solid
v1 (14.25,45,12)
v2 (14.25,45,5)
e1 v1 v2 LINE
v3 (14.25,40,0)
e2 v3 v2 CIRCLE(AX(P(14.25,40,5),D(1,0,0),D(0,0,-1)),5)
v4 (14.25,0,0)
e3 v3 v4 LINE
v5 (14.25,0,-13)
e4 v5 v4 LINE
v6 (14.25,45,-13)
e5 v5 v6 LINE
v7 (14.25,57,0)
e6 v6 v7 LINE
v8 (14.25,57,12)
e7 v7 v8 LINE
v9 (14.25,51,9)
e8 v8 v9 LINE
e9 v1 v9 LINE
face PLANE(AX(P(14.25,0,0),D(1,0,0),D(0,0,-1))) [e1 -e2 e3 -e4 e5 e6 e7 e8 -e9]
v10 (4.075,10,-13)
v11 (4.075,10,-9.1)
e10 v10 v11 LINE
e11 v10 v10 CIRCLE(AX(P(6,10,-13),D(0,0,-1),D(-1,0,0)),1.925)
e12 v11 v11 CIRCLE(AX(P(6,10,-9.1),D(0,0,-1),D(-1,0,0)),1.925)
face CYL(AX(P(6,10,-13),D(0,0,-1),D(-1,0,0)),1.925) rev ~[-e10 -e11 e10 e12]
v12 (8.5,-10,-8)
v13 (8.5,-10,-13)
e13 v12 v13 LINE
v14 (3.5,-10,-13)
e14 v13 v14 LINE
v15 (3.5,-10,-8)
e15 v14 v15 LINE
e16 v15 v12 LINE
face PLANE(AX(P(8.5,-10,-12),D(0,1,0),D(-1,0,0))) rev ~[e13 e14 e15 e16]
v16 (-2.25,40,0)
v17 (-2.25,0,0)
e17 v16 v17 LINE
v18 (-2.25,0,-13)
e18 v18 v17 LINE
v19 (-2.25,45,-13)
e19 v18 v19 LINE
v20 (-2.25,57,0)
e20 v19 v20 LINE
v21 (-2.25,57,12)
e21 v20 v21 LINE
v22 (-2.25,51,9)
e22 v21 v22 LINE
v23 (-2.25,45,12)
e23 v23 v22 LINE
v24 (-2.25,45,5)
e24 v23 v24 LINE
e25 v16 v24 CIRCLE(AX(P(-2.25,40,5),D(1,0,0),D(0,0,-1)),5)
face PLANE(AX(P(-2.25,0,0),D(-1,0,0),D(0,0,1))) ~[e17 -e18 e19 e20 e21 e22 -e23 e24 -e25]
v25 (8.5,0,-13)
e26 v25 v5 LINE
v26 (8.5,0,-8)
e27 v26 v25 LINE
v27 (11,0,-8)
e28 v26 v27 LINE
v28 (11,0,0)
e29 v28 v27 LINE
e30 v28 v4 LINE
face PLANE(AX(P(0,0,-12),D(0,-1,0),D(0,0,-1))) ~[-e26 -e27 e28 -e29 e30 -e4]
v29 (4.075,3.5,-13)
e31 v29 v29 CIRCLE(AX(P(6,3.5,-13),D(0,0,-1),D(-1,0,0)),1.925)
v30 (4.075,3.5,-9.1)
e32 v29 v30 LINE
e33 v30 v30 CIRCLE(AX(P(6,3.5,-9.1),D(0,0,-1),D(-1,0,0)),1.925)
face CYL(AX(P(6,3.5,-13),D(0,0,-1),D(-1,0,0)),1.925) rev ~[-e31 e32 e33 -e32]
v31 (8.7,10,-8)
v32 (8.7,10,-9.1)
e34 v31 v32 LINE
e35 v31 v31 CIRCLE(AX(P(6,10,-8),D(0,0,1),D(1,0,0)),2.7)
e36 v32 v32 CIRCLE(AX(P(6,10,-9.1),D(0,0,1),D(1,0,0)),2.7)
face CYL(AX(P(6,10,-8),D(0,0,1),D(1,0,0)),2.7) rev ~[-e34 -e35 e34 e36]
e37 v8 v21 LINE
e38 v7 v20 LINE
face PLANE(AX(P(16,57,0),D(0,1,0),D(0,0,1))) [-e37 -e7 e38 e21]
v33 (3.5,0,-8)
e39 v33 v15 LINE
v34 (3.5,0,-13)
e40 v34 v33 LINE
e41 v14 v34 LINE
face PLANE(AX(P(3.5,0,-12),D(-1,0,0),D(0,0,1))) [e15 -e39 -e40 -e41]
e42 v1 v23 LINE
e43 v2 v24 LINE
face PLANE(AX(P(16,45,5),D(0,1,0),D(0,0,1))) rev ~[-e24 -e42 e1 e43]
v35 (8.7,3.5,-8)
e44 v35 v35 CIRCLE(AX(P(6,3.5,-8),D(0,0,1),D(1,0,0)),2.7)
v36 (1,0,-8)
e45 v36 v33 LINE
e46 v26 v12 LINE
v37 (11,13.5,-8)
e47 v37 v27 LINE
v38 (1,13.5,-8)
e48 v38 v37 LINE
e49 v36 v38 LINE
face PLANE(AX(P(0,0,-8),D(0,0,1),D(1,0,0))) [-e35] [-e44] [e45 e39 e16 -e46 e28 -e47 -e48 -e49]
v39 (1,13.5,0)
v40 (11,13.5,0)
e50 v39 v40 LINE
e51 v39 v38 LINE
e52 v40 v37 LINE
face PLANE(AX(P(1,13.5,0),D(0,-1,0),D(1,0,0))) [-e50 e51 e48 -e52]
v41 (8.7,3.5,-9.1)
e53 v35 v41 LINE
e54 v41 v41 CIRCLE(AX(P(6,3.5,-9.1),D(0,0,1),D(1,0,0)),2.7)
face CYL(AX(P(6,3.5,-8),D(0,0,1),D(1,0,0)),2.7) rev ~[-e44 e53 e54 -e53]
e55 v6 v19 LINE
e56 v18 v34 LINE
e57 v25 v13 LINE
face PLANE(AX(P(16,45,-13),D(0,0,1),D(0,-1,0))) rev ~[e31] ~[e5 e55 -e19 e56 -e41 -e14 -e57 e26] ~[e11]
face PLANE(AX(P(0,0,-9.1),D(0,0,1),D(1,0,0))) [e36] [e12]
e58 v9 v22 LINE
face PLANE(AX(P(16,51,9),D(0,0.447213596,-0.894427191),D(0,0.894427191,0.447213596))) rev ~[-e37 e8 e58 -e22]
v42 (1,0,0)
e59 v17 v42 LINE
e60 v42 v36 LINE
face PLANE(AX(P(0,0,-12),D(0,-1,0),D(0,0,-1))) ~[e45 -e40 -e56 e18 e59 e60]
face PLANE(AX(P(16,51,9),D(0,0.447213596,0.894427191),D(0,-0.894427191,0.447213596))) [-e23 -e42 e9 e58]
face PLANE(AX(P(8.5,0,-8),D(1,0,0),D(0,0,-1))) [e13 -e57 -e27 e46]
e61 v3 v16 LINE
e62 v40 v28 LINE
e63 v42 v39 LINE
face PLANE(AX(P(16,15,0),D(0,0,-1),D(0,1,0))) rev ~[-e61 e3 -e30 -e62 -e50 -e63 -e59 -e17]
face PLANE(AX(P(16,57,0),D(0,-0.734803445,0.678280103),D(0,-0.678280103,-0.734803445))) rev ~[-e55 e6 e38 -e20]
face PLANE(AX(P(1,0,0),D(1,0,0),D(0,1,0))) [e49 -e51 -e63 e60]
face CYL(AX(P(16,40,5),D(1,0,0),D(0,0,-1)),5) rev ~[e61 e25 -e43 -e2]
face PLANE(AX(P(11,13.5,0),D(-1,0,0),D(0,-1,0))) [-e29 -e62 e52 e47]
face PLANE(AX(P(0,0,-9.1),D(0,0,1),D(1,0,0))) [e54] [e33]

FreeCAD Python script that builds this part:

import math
import FreeCAD as App
import Part
import Sketcher

V = App.Vector
Q = App.Units.Quantity

doc = App.newDocument("Part")
body = doc.addObject("PartDesign::Body", "Body")

# Sketch on YZ plane
sketch1 = body.newObject("Sketcher::SketchObject", "Sketch")
sketch1.AttachmentSupport = (doc.getObject("YZ_Plane"), [""])
sketch1.MapMode = "FlatFace"
sketch1.addGeometry([
    Part.LineSegment(V(15, 0, 0), V(0, 0, 0)),
    Part.LineSegment(V(0, 0, 0), V(0, -10, 0)),
    Part.LineSegment(V(0, -10, 0), V(15, -10, 0)),
    Part.LineSegment(V(15, -10, 0), V(15, 0, 0)),
], False)
sketch1.addConstraint([
    Sketcher.Constraint("Coincident", 0, 2, 1, 1),
    Sketcher.Constraint("Coincident", 1, 2, 2, 1),
    Sketcher.Constraint("Coincident", 2, 2, 3, 1),
    Sketcher.Constraint("Coincident", 3, 2, 0, 1),
    Sketcher.Constraint("Horizontal", 0),
    Sketcher.Constraint("Vertical", 1),
    Sketcher.Constraint("Horizontal", 2),
    Sketcher.Constraint("Vertical", 3),
    Sketcher.Constraint("Coincident", 0, 2, -1, 1),
    Sketcher.Constraint("DistanceX", 0, 2, 0, 1, Q("15 mm")),
    Sketcher.Constraint("DistanceY", 1, 2, 1, 1, Q("10 mm")),
])
pad1 = body.newObject("PartDesign::Pad", "Pad")
pad1.Profile = sketch1
pad1.Length = 12

# Sketch on XY plane
sketch2 = body.newObject("Sketcher::SketchObject", "Sketch001")
sketch2.AttachmentSupport = (doc.getObject("XY_Plane"), [""])
sketch2.MapMode = "FlatFace"
sketch2.addGeometry([
    Part.LineSegment(V(1, 14, 0), V(1, 0, 0)),
    Part.LineSegment(V(1, 0, 0), V(11, 0, 0)),
    Part.LineSegment(V(11, 0, 0), V(11, 14, 0)),
    Part.LineSegment(V(11, 14, 0), V(1, 14, 0)),
], False)
sketch2.addConstraint([
    Sketcher.Constraint("Coincident", 0, 2, 1, 1),
    Sketcher.Constraint("Coincident", 1, 2, 2, 1),
    Sketcher.Constraint("Coincident", 2, 2, 3, 1),
    Sketcher.Constraint("Coincident", 3, 2, 0, 1),
    Sketcher.Constraint("Vertical", 0),
    Sketcher.Constraint("Horizontal", 1),
    Sketcher.Constraint("Vertical", 2),
    Sketcher.Constraint("Horizontal", 3),
    Sketcher.Constraint("PointOnObject", 0, 2, -1),
    Sketcher.Constraint("DistanceX", 1, 1, 1, 2, Q("10 mm")),
    Sketcher.Constraint("DistanceY", 0, 2, 0, 1, Q("13.5 mm")),
    Sketcher.Constraint("DistanceX", -1, 1, 0, 2, Q("1 mm")),
])
pocket1 = body.newObject("PartDesign::Pocket", "Pocket")
pocket1.Profile = sketch2
pocket1.Length = 8

# Sketch on XY plane
sketch3 = body.newObject("Sketcher::SketchObject", "Sketch002")
sketch3.AttachmentSupport = (doc.getObject("XY_Plane"), [""])
sketch3.MapMode = "FlatFace"
sketch3.AttachmentOffset = App.Placement(V(0, 0, -10), App.Rotation())
sketch3.addGeometry([
    Part.LineSegment(V(0, 0, 0), V(0, 15, 0)),
    Part.LineSegment(V(0, 15, 0), V(12, 15, 0)),
    Part.LineSegment(V(12, 15, 0), V(12, 0, 0)),
    Part.LineSegment(V(12, 0, 0), V(0, 0, 0)),
], False)
sketch3.addConstraint([
    Sketcher.Constraint("Coincident", 0, 2, 1, 1),
    Sketcher.Constraint("Coincident", 1, 2, 2, 1),
    Sketcher.Constraint("Coincident", 2, 2, 3, 1),
    Sketcher.Constraint("Coincident", 3, 2, 0, 1),
    Sketcher.Constraint("Vertical", 0),
    Sketcher.Constraint("Horizontal", 1),
    Sketcher.Constraint("Vertical", 2),
    Sketcher.Constraint("Horizontal", 3),
    Sketcher.Constraint("Coincident", 3, 2, -1, 1),
    Sketcher.Constraint("DistanceX", 1, 1, 1, 2, Q("12 mm")),
    Sketcher.Constraint("DistanceY", 0, 1, 0, 2, Q("15 mm")),
])
pad2 = body.newObject("PartDesign::Pad", "Pad001")
pad2.Profile = sketch3
pad2.Length = 2
pad2.Reversed = True

# Sketch on XY plane
sketch4 = body.newObject("Sketcher::SketchObject", "Sketch003")
sketch4.AttachmentSupport = (doc.getObject("XY_Plane"), [""])
sketch4.MapMode = "FlatFace"
sketch4.AttachmentOffset = App.Placement(V(0, 0, -8), App.Rotation())
sketch4.addGeometry([
    Part.Circle(V(6, 10, 0), V(0, 0, 1), 1.2),
    Part.Circle(V(6, 3.5, 0), V(0, 0, 1), 1.2),
], False)
sketch4.addConstraint([
    Sketcher.Constraint("Equal", 0, 1),
    Sketcher.Constraint("Vertical", 0, 3, 1, 3),
    Sketcher.Constraint("Diameter", 0, Q("2.459 mm")),
    Sketcher.Constraint("DistanceY", -1, 1, 1, 3, Q("3.5 mm")),
    Sketcher.Constraint("DistanceY", 1, 3, 0, 3, Q("6.5 mm")),
    Sketcher.Constraint("DistanceX", -1, 1, 0, 3, Q("6 mm")),
])
pocket2 = body.newObject("PartDesign::Pocket", "Pocket001")
pocket2.Profile = sketch4
pocket2.Length = 4

# Sketch on XY plane
sketch5 = body.newObject("Sketcher::SketchObject", "Sketch004")
sketch5.AttachmentSupport = (doc.getObject("XY_Plane"), [""])
sketch5.MapMode = "FlatFace"
sketch5.AttachmentOffset = App.Placement(V(0, 0, -8), App.Rotation())
sketch5.addGeometry([
    Part.Circle(V(6, 10, 0), V(0, 0, 1), 2.7),
    Part.Circle(V(6, 10, 0), V(0, 0, 1), 1.2),
    Part.Circle(V(6, 3.5, 0), V(0, 0, 1), 2.7),
    Part.Circle(V(6, 3.5, 0), V(0, 0, 1), 1.2),
], False)
sketch5.addConstraint([
    Sketcher.Constraint("Coincident", 1, 3, 0, 3),
    Sketcher.Constraint("Coincident", 3, 3, 2, 3),
    Sketcher.Constraint("Equal", 0, 2),
    Sketcher.Constraint("Equal", 1, 3),
    Sketcher.Constraint("Vertical", 1, 3, 2, 3),
    Sketcher.Constraint("Diameter", 0, Q("5.4 mm")),
    Sketcher.Constraint("Diameter", 1, Q("2.459 mm")),
    Sketcher.Constraint("DistanceX", -1, 1, 0, 3, Q("6 mm")),
    Sketcher.Constraint("DistanceY", -1, 1, 0, 3, Q("10 mm")),
    Sketcher.Constraint("DistanceY", -1, 1, 2, 3, Q("3.5 mm")),
])
pocket3 = body.newObject("PartDesign::Pocket", "Pocket002")
pocket3.Profile = sketch5
pocket3.Length = 1.1

# Sketch on YZ plane
sketch6 = body.newObject("Sketcher::SketchObject", "Sketch005")
sketch6.AttachmentSupport = (doc.getObject("YZ_Plane"), [""])
sketch6.MapMode = "FlatFace"
sketch6.AttachmentOffset = App.Placement(V(0, 0, 12), App.Rotation())
sketch6.addGeometry([
    Part.LineSegment(V(15, -12, 0), V(15, 0, 0)),
    Part.LineSegment(V(15, 0, 0), V(0, 0, 0)),
    Part.LineSegment(V(0, 0, 0), V(0, -12, 0)),
    Part.LineSegment(V(0, -12, 0), V(15, -12, 0)),
], False)
sketch6.addConstraint([
    Sketcher.Constraint("Coincident", 0, 2, 1, 1),
    Sketcher.Constraint("Coincident", 1, 2, 2, 1),
    Sketcher.Constraint("Coincident", 2, 2, 3, 1),
    Sketcher.Constraint("Coincident", 3, 2, 0, 1),
    Sketcher.Constraint("Vertical", 0),
    Sketcher.Constraint("Horizontal", 1),
    Sketcher.Constraint("Vertical", 2),
    Sketcher.Constraint("Horizontal", 3),
    Sketcher.Constraint("Coincident", 1, 2, -1, 1),
    Sketcher.Constraint("DistanceX", 1, 2, 1, 1, Q("15 mm")),
    Sketcher.Constraint("DistanceY", 0, 1, 0, 2, Q("12 mm")),
])
pad3 = body.newObject("PartDesign::Pad", "Pad002")
pad3.Profile = sketch6
pad3.Length = 4
doc.recompute()

datumplane = body.newObject("PartDesign::Plane", "DatumPlane")
datumplane.AttachmentSupport = (doc.getObject("YZ_Plane"), [""])
datumplane.MapMode = "FlatFace"
datumplane.AttachmentOffset = App.Placement(V(0, 0, 6), App.Rotation())
mirrored = body.newObject("PartDesign::Mirrored", "Mirrored")
mirrored.Originals = [pad3]
mirrored.MirrorPlane = (datumplane, [""])
body.Tip = mirrored

# Sketch on XZ plane
sketch7 = body.newObject("Sketcher::SketchObject", "Sketch006")
sketch7.AttachmentSupport = (doc.getObject("XZ_Plane"), [""])
sketch7.MapMode = "FlatFace"
sketch7.addGeometry([
    Part.LineSegment(V(8.5, -12, 0), V(8.5, -8, 0)),
    Part.LineSegment(V(8.5, -8, 0), V(3.5, -8, 0)),
    Part.LineSegment(V(3.5, -8, 0), V(3.5, -12, 0)),
    Part.LineSegment(V(3.5, -12, 0), V(8.5, -12, 0)),
], False)
sketch7.addConstraint([
    Sketcher.Constraint("Coincident", 0, 2, 1, 1),
    Sketcher.Constraint("Coincident", 1, 2, 2, 1),
    Sketcher.Constraint("Coincident", 2, 2, 3, 1),
    Sketcher.Constraint("Coincident", 3, 2, 0, 1),
    Sketcher.Constraint("Vertical", 0),
    Sketcher.Constraint("Horizontal", 1),
    Sketcher.Constraint("Vertical", 2),
    Sketcher.Constraint("Horizontal", 3),
    Sketcher.Constraint("DistanceX", 1, 2, 1, 1, Q("5 mm")),
    Sketcher.Constraint("DistanceY", 0, 1, 0, 2, Q("4 mm")),
    Sketcher.Constraint("DistanceY", 0, 2, -1, 1, Q("8 mm")),
    Sketcher.Constraint("DistanceX", -1, 1, 0, 2, Q("8.5 mm")),
])
pad4 = body.newObject("PartDesign::Pad", "Pad003")
pad4.Profile = sketch7
pad4.Length = 10

# Sketch on XY plane
sketch8 = body.newObject("Sketcher::SketchObject", "Sketch007")
sketch8.AttachmentSupport = (doc.getObject("XY_Plane"), [""])
sketch8.MapMode = "FlatFace"
sketch8.AttachmentOffset = App.Placement(V(0, 0, -12), App.Rotation())
sketch8.addGeometry([
    Part.LineSegment(V(-4, 15, 0), V(16, 15, 0)),  # 0
    Part.LineSegment(V(16, 15, 0), V(16, 0, 0)),  # 1
    Part.LineSegment(V(16, 0, 0), V(8.5, 0, 0)),  # 2
    Part.LineSegment(V(8.5, 0, 0), V(8.5, -10, 0)),  # 3
    Part.LineSegment(V(8.5, -10, 0), V(3.5, -10, 0)),  # 4
    Part.LineSegment(V(3.5, -10, 0), V(3.5, 0, 0)),  # 5
    Part.LineSegment(V(3.5, 0, 0), V(-4, 0, 0)),  # 6
    Part.LineSegment(V(-4, 0, 0), V(-4, 15, 0)),  # 7
    Part.Circle(V(6, 3.5, 0), V(0, 0, 1), 1.2),  # 8
    Part.Circle(V(6, 10, 0), V(0, 0, 1), 1.2),  # 9
], False)
sketch8.addConstraint([
    Sketcher.Constraint("Coincident", 0, 2, 1, 1),
    Sketcher.Constraint("Coincident", 1, 2, 2, 1),
    Sketcher.Constraint("Coincident", 2, 2, 3, 1),
    Sketcher.Constraint("Coincident", 3, 2, 4, 1),
    Sketcher.Constraint("Coincident", 4, 2, 5, 1),
    Sketcher.Constraint("Coincident", 5, 2, 6, 1),
    Sketcher.Constraint("Coincident", 6, 2, 7, 1),
    Sketcher.Constraint("Coincident", 7, 2, 0, 1),
    Sketcher.Constraint("Horizontal", 0),
    Sketcher.Constraint("Vertical", 1),
    Sketcher.Constraint("Horizontal", 2),
    Sketcher.Constraint("Vertical", 3),
    Sketcher.Constraint("Horizontal", 4),
    Sketcher.Constraint("Vertical", 5),
    Sketcher.Constraint("Horizontal", 6),
    Sketcher.Constraint("Vertical", 7),
    Sketcher.Constraint("Equal", 8, 9),
    Sketcher.Constraint("PointOnObject", 1, 2, -1),
    Sketcher.Constraint("PointOnObject", 5, 2, -1),
    Sketcher.Constraint("Vertical", 8, 3, 9, 3),
    Sketcher.Constraint("Equal", 2, 6),
    Sketcher.Constraint("DistanceX", 0, 1, 0, 2, Q("20 mm")),
    Sketcher.Constraint("DistanceX", 4, 2, 4, 1, Q("5 mm")),
    Sketcher.Constraint("DistanceY", 1, 2, 1, 1, Q("15 mm")),
    Sketcher.Constraint("DistanceY", 3, 2, 3, 1, Q("10 mm")),
    Sketcher.Constraint("Diameter", 8, Q("2.459 mm")),
    Sketcher.Constraint("DistanceX", -1, 1, 8, 3, Q("6 mm")),
    Sketcher.Constraint("DistanceY", -1, 1, 9, 3, Q("10 mm")),
    Sketcher.Constraint("DistanceX", -1, 1, 0, 2, Q("16 mm")),
    Sketcher.Constraint("DistanceY", -1, 1, 8, 3, Q("3.5 mm")),
])
pad5 = body.newObject("PartDesign::Pad", "Pad004")
pad5.Profile = sketch8
pad5.Length = 1
pad5.Reversed = True

# Sketch on YZ plane
sketch9 = body.newObject("Sketcher::SketchObject", "Sketch008")
sketch9.AttachmentSupport = (doc.getObject("YZ_Plane"), [""])
sketch9.MapMode = "FlatFace"
sketch9.AttachmentOffset = App.Placement(V(0, 0, 16), App.Rotation())
sketch9.addGeometry([
    Part.LineSegment(V(40, 0, 0), V(15, 0, 0)),  # 0
    Part.LineSegment(V(15, 0, 0), V(15, -13, 0)),  # 1
    Part.LineSegment(V(15, -13, 0), V(45, -13, 0)),  # 2
    Part.LineSegment(V(45, -13, 0), V(57, 0, 0)),  # 3
    Part.LineSegment(V(57, 0, 0), V(57, 12, 0)),  # 4
    Part.LineSegment(V(57, 12, 0), V(51, 9, 0)),  # 5
    Part.LineSegment(V(51, 9, 0), V(45, 12, 0)),  # 6
    Part.LineSegment(V(45, 12, 0), V(45, 5, 0)),  # 7
    Part.ArcOfCircle(Part.Circle(V(40, 5, 0), V(0, 0, 1), 5), math.radians(-90), math.radians(0)),  # 8
], False)
sketch9.addConstraint([
    Sketcher.Constraint("Coincident", 0, 2, 1, 1),
    Sketcher.Constraint("Coincident", 1, 2, 2, 1),
    Sketcher.Constraint("Coincident", 2, 2, 3, 1),
    Sketcher.Constraint("Coincident", 3, 2, 4, 1),
    Sketcher.Constraint("Coincident", 4, 2, 5, 1),
    Sketcher.Constraint("Coincident", 5, 2, 6, 1),
    Sketcher.Constraint("Coincident", 6, 2, 7, 1),
    Sketcher.Constraint("Tangent", 7, 2, 8, 2),
    Sketcher.Constraint("Tangent", 8, 1, 0, 1),
    Sketcher.Constraint("Horizontal", 0),
    Sketcher.Constraint("Vertical", 1),
    Sketcher.Constraint("Horizontal", 2),
    Sketcher.Constraint("Vertical", 4),
    Sketcher.Constraint("Vertical", 7),
    Sketcher.Constraint("PointOnObject", 0, 2, -1),
    Sketcher.Constraint("PointOnObject", 3, 2, -1),
    Sketcher.Constraint("Horizontal", 4, 2, 6, 2),
    Sketcher.Constraint("Vertical", 2, 2, 6, 2),
    Sketcher.Constraint("Equal", 5, 6),
    Sketcher.Constraint("Radius", 8, Q("5 mm")),
    Sketcher.Constraint("DistanceX", 2, 1, 2, 2, Q("30 mm")),
    Sketcher.Constraint("DistanceY", 1, 2, 1, 1, Q("13 mm")),
    Sketcher.Constraint("DistanceY", 4, 1, 4, 2, Q("12 mm")),
    Sketcher.Constraint("DistanceX", -1, 1, 8, 3, Q("40 mm")),
    Sketcher.Constraint("DistanceX", -1, 1, 3, 2, Q("57 mm")),
    Sketcher.Constraint("DistanceY", -1, 1, 5, 2, Q("9 mm")),
])
pad6 = body.newObject("PartDesign::Pad", "Pad005")
pad6.Profile = sketch9
pad6.Length = 20
pad6.Reversed = True

# Sketch on XY plane
sketch10 = body.newObject("Sketcher::SketchObject", "Sketch009")
sketch10.AttachmentSupport = (doc.getObject("XY_Plane"), [""])
sketch10.MapMode = "FlatFace"
sketch10.AttachmentOffset = App.Placement(V(0, 0, -13), App.Rotation())
sketch10.addGeometry([
    Part.Circle(V(6, 10, 0), V(0, 0, 1), 1.9),
    Part.Circle(V(6, 10, 0), V(0, 0, 1), 1.2),
    Part.Circle(V(6, 3.5, 0), V(0, 0, 1), 1.9),
    Part.Circle(V(6, 3.5, 0), V(0, 0, 1), 1.2),
], False)
sketch10.addConstraint([
    Sketcher.Constraint("Coincident", 1, 3, 0, 3),
    Sketcher.Constraint("Coincident", 3, 3, 2, 3),
    Sketcher.Constraint("Equal", 0, 2),
    Sketcher.Constraint("Equal", 1, 3),
    Sketcher.Constraint("Vertical", 1, 3, 2, 3),
    Sketcher.Constraint("Diameter", 0, Q("3.85 mm")),
    Sketcher.Constraint("Diameter", 1, Q("2.459 mm")),
    Sketcher.Constraint("DistanceX", -1, 1, 0, 3, Q("6 mm")),
    Sketcher.Constraint("DistanceY", -1, 1, 0, 3, Q("10 mm")),
    Sketcher.Constraint("DistanceY", -1, 1, 2, 3, Q("3.5 mm")),
])
pocket4 = body.newObject("PartDesign::Pocket", "Pocket003")
pocket4.Profile = sketch10
pocket4.Length = 10
pocket4.Reversed = True

# Sketch on YZ plane
sketch11 = body.newObject("Sketcher::SketchObject", "Sketch010")
sketch11.AttachmentSupport = (doc.getObject("YZ_Plane"), [""])
sketch11.MapMode = "FlatFace"
sketch11.AttachmentOffset = App.Placement(V(0, 0, 16), App.Rotation())
sketch11.addGeometry([
    Part.LineSegment(V(45, -13, 0), V(57, 0, 0)),  # 0
    Part.LineSegment(V(57, 0, 0), V(57, 12, 0)),  # 1
    Part.LineSegment(V(57, 12, 0), V(51, 9, 0)),  # 2
    Part.LineSegment(V(51, 9, 0), V(45, 12, 0)),  # 3
    Part.LineSegment(V(45, 12, 0), V(45, 5, 0)),  # 4
    Part.ArcOfCircle(Part.Circle(V(40, 5, 0), V(0, 0, 1), 5), math.radians(-90), math.radians(0)),  # 5
    Part.LineSegment(V(40, 0, 0), V(0, 0, 0)),  # 6
    Part.LineSegment(V(0, 0, 0), V(0, -13, 0)),  # 7
    Part.LineSegment(V(0, -13, 0), V(45, -13, 0)),  # 8
], False)
sketch11.addConstraint([
    Sketcher.Constraint("Coincident", 0, 2, 1, 1),
    Sketcher.Constraint("Coincident", 1, 2, 2, 1),
    Sketcher.Constraint("Coincident", 2, 2, 3, 1),
    Sketcher.Constraint("Coincident", 3, 2, 4, 1),
    Sketcher.Constraint("Tangent", 4, 2, 5, 2),
    Sketcher.Constraint("Tangent", 5, 1, 6, 1),
    Sketcher.Constraint("Coincident", 6, 2, 7, 1),
    Sketcher.Constraint("Coincident", 7, 2, 8, 1),
    Sketcher.Constraint("Coincident", 8, 2, 0, 1),
    Sketcher.Constraint("Vertical", 1),
    Sketcher.Constraint("Vertical", 4),
    Sketcher.Constraint("Horizontal", 6),
    Sketcher.Constraint("Vertical", 7),
    Sketcher.Constraint("Horizontal", 8),
    Sketcher.Constraint("Coincident", 6, 2, -1, 1),
    Sketcher.Constraint("PointOnObject", 0, 2, -1),
    Sketcher.Constraint("Horizontal", 1, 2, 3, 2),
    Sketcher.Constraint("Vertical", 4, 2, 8, 2),
    Sketcher.Constraint("Equal", 2, 3),
    Sketcher.Constraint("Radius", 5, Q("5 mm")),
    Sketcher.Constraint("DistanceX", 6, 2, 6, 1, Q("40 mm")),
    Sketcher.Constraint("DistanceY", 1, 1, 1, 2, Q("12 mm")),
    Sketcher.Constraint("DistanceY", 7, 2, 7, 1, Q("13 mm")),
    Sketcher.Constraint("DistanceX", -1, 1, 0, 2, Q("57 mm")),
    Sketcher.Constraint("DistanceY", -1, 1, 2, 2, Q("9 mm")),
])
pocket5 = body.newObject("PartDesign::Pocket", "Pocket004")
pocket5.Profile = sketch11
pocket5.Length = 1.75
doc.recompute()

datumplane2 = body.newObject("PartDesign::Plane", "DatumPlane001")
datumplane2.AttachmentSupport = (doc.getObject("YZ_Plane"), [""])
datumplane2.MapMode = "FlatFace"
datumplane2.AttachmentOffset = App.Placement(V(0, 0, 6), App.Rotation())
mirrored2 = body.newObject("PartDesign::Mirrored", "Mirrored001")
mirrored2.Originals = [pocket5]
mirrored2.MirrorPlane = (datumplane2, [""])
body.Tip = mirrored2

doc.recompute()
